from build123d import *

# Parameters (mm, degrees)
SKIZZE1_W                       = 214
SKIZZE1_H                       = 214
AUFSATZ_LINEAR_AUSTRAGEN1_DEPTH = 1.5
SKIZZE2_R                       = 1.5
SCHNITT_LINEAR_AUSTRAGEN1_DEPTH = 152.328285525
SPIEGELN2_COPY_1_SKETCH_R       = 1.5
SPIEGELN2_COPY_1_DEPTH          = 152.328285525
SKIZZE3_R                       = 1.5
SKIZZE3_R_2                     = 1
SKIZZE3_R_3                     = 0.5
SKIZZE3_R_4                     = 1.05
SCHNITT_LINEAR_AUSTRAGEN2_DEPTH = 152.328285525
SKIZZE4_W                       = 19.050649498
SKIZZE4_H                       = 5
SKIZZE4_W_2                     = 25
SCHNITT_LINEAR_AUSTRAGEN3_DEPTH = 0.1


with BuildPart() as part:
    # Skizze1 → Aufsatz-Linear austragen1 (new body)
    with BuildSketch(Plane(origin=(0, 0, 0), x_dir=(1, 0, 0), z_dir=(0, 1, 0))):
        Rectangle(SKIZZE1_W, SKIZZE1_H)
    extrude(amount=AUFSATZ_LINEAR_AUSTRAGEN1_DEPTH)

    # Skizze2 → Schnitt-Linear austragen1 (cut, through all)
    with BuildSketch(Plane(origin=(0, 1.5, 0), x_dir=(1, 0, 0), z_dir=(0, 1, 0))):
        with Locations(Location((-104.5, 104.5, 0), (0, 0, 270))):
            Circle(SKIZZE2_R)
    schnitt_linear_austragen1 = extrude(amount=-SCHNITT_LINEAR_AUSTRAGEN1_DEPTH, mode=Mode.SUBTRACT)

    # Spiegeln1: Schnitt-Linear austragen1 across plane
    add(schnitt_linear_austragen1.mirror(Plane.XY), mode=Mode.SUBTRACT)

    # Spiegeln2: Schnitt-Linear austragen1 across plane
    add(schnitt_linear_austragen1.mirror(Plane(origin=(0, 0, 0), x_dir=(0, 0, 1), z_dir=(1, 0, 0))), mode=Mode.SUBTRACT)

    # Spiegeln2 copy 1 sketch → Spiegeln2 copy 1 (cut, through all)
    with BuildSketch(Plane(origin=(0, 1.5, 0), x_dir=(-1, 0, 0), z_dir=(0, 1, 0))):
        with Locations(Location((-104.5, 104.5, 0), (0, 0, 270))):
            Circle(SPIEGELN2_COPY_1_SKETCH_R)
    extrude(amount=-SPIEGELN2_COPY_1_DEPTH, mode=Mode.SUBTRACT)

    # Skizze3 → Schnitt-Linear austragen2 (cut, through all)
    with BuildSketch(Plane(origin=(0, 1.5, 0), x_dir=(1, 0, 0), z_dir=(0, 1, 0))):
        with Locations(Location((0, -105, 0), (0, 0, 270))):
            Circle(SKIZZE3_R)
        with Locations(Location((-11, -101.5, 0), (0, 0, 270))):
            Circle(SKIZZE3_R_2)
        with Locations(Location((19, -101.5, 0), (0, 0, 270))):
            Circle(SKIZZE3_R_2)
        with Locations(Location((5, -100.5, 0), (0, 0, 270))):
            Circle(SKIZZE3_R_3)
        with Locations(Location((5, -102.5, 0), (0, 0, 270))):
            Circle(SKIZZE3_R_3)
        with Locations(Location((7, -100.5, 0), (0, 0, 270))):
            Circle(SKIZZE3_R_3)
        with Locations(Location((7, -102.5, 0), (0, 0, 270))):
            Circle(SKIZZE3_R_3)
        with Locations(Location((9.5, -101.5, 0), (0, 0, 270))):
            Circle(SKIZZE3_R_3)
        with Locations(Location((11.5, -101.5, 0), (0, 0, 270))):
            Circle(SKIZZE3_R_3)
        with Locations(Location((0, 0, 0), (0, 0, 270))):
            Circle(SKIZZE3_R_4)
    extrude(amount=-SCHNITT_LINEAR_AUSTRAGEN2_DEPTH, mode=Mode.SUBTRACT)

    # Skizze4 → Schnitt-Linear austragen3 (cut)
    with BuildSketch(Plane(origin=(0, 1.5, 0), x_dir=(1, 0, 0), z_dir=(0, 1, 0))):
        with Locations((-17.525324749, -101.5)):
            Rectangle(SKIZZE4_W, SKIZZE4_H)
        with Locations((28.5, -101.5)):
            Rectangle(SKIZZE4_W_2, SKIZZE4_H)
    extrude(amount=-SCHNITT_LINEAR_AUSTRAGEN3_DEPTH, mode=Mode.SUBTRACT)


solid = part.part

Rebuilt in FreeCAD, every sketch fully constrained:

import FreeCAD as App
import Part
import Sketcher
from FreeCAD import Vector
Q = App.Units.Quantity

doc = App.newDocument("Part")
body = doc.addObject("PartDesign::Body", "Body")

# Sketch on XZ plane
sketch1 = body.newObject("Sketcher::SketchObject", "Sketch")
sketch1.AttachmentSupport = (doc.getObject("XZ_Plane"), [""])
sketch1.MapMode = "FlatFace"
sketch1.addGeometry([
    Part.LineSegment(Vector(-107, -107, 0), Vector(-107, 107, 0)),
    Part.LineSegment(Vector(-107, 107, 0), Vector(107, 107, 0)),
    Part.LineSegment(Vector(107, 107, 0), Vector(107, -107, 0)),
    Part.LineSegment(Vector(107, -107, 0), Vector(-107, -107, 0)),
], False)
sketch1.addConstraint([
    Sketcher.Constraint("Coincident", 0, 2, 1, 1),
    Sketcher.Constraint("Coincident", 1, 2, 2, 1),
    Sketcher.Constraint("Coincident", 2, 2, 3, 1),
    Sketcher.Constraint("Coincident", 3, 2, 0, 1),
    Sketcher.Constraint("Vertical", 0),
    Sketcher.Constraint("Horizontal", 1),
    Sketcher.Constraint("Vertical", 2),
    Sketcher.Constraint("Horizontal", 3),
    Sketcher.Constraint("Symmetric", 0, 2, 2, 2, -1, 1),
    Sketcher.Constraint("Equal", 3, 0),
    Sketcher.Constraint("DistanceX", 1, 1, 1, 2, Q("214 mm")),
])
pad1 = body.newObject("PartDesign::Pad", "Pad")
pad1.Profile = sketch1
pad1.Length = 1.5
pad1.Reversed = True

# Sketch on XZ plane
sketch2 = body.newObject("Sketcher::SketchObject", "Sketch001")
sketch2.AttachmentSupport = (doc.getObject("XZ_Plane"), [""])
sketch2.MapMode = "FlatFace"
sketch2.AttachmentOffset = App.Placement(Vector(0, 0, -1.5), App.Rotation())
sketch2.addGeometry(Part.Circle(Vector(-104.5, -104.5, 0), Vector(0, 0, 1), 1.5), False)
sketch2.addConstraint([
    Sketcher.Constraint("Diameter", 0, Q("3 mm")),
    Sketcher.Constraint("DistanceX", 0, 3, -1, 1, Q("104.5 mm")),
    Sketcher.Constraint("DistanceY", 0, 3, -1, 1, Q("104.5 mm")),
])
pocket1 = body.newObject("PartDesign::Pocket", "Pocket")
pocket1.Profile = sketch2
pocket1.Type = "ThroughAll"
pocket1.Reversed = True
doc.recompute()

mirrored = body.newObject("PartDesign::Mirrored", "Mirrored")
mirrored.Originals = [pocket1]
mirrored.MirrorPlane = (doc.getObject("XY_Plane"), [""])
body.Tip = mirrored
doc.recompute()

mirrored2 = body.newObject("PartDesign::Mirrored", "Mirrored001")
mirrored2.Originals = [pocket1]
mirrored2.MirrorPlane = (doc.getObject("YZ_Plane"), [""])
body.Tip = mirrored2

# Sketch on XZ plane
sketch3 = body.newObject("Sketcher::SketchObject", "Sketch002")
sketch3.AttachmentSupport = (doc.getObject("XZ_Plane"), [""])
sketch3.MapMode = "FlatFace"
sketch3.AttachmentOffset = App.Placement(Vector(0, 0, -1.5), App.Rotation())
sketch3.addGeometry(Part.Circle(Vector(104.5, 104.5, 0), Vector(0, 0, 1), 1.5), False)
sketch3.addConstraint([
    Sketcher.Constraint("Diameter", 0, Q("3 mm")),
    Sketcher.Constraint("DistanceX", -1, 1, 0, 3, Q("104.5 mm")),
    Sketcher.Constraint("DistanceY", -1, 1, 0, 3, Q("104.5 mm")),
])
pocket2 = body.newObject("PartDesign::Pocket", "Pocket001")
pocket2.Profile = sketch3
pocket2.Type = "ThroughAll"
pocket2.Reversed = True

# Sketch on XZ plane
sketch4 = body.newObject("Sketcher::SketchObject", "Sketch003")
sketch4.AttachmentSupport = (doc.getObject("XZ_Plane"), [""])
sketch4.MapMode = "FlatFace"
sketch4.AttachmentOffset = App.Placement(Vector(0, 0, -1.5), App.Rotation())
sketch4.addGeometry([
    Part.Circle(Vector(0, 105, 0), Vector(0, 0, 1), 1.5),  # 0
    Part.Circle(Vector(-11, 101.5, 0), Vector(0, 0, 1), 1),  # 1
    Part.Circle(Vector(19, 101.5, 0), Vector(0, 0, 1), 1),  # 2
    Part.Circle(Vector(5, 100.5, 0), Vector(0, 0, 1), 0.5),  # 3
    Part.Circle(Vector(5, 102.5, 0), Vector(0, 0, 1), 0.5),  # 4
    Part.Circle(Vector(7, 100.5, 0), Vector(0, 0, 1), 0.5),  # 5
    Part.Circle(Vector(7, 102.5, 0), Vector(0, 0, 1), 0.5),  # 6
    Part.Circle(Vector(9.5, 101.5, 0), Vector(0, 0, 1), 0.5),  # 7
    Part.Circle(Vector(11.5, 101.5, 0), Vector(0, 0, 1), 0.5),  # 8
    Part.Circle(Vector(0, 0, 0), Vector(0, 0, 1), 1.05),  # 9
], False)
sketch4.addConstraint([
    Sketcher.Constraint("Coincident", 9, 3, -1, 1),
    Sketcher.Constraint("Equal", 1, 2),
    Sketcher.Constraint("Equal", 3, 4),
    Sketcher.Constraint("Equal", 4, 5),
    Sketcher.Constraint("Equal", 5, 6),
    Sketcher.Constraint("Equal", 6, 7),
    Sketcher.Constraint("Equal", 7, 8),
    Sketcher.Constraint("PointOnObject", 0, 3, -2),
    Sketcher.Constraint("Horizontal", 1, 3, 2, 3),
    Sketcher.Constraint("Horizontal", 3, 3, 5, 3),
    Sketcher.Constraint("Horizontal", 4, 3, 6, 3),
    Sketcher.Constraint("Horizontal", 2, 3, 7, 3),
    Sketcher.Constraint("Horizontal", 7, 3, 8, 3),
    Sketcher.Constraint("Vertical", 3, 3, 4, 3),
    Sketcher.Constraint("Vertical", 5, 3, 6, 3),
    Sketcher.Constraint("Diameter", 0, Q("3 mm")),
    Sketcher.Constraint("Diameter", 1, Q("2 mm")),
    Sketcher.Constraint("Diameter", 3, Q("1 mm")),
    Sketcher.Constraint("Diameter", 9, Q("2.1 mm")),
    Sketcher.Constraint("DistanceY", -1, 1, 0, 3, Q("105 mm")),
    Sketcher.Constraint("DistanceX", 1, 3, -1, 1, Q("11 mm")),
    Sketcher.Constraint("DistanceX", -1, 1, 2, 3, Q("19 mm")),
    Sketcher.Constraint("DistanceX", -1, 1, 3, 3, Q("5 mm")),
    Sketcher.Constraint("DistanceX", -1, 1, 5, 3, Q("7 mm")),
    Sketcher.Constraint("DistanceY", 3, 3, 2, 3, Q("1 mm")),
    Sketcher.Constraint("DistanceY", 3, 3, 4, 3, Q("2 mm")),
    Sketcher.Constraint("DistanceX", 7, 3, 8, 3, Q("2 mm")),
    Sketcher.Constraint("DistanceY", -1, 1, 1, 3, Q("101.5 mm")),
    Sketcher.Constraint("DistanceX", -1, 1, 7, 3, Q("9.5 mm")),
])
pocket3 = body.newObject("PartDesign::Pocket", "Pocket002")
pocket3.Profile = sketch4
pocket3.Type = "ThroughAll"
pocket3.Reversed = True

# Sketch on XZ plane
sketch5 = body.newObject("Sketcher::SketchObject", "Sketch004")
sketch5.AttachmentSupport = (doc.getObject("XZ_Plane"), [""])
sketch5.MapMode = "FlatFace"
sketch5.AttachmentOffset = App.Placement(Vector(0, 0, -1.5), App.Rotation())
sketch5.addGeometry([
    Part.LineSegment(Vector(-27.050649, 99, 0), Vector(-27.050649, 104, 0)),  # 0
    Part.LineSegment(Vector(-27.050649, 104, 0), Vector(-8, 104, 0)),  # 1
    Part.LineSegment(Vector(-8, 104, 0), Vector(-8, 99, 0)),  # 2
    Part.LineSegment(Vector(-8, 99, 0), Vector(-27.050649, 99, 0)),  # 3
    Part.LineSegment(Vector(16, 99, 0), Vector(16, 104, 0)),  # 4
    Part.LineSegment(Vector(16, 104, 0), Vector(41, 104, 0)),  # 5
    Part.LineSegment(Vector(41, 104, 0), Vector(41, 99, 0)),  # 6
    Part.LineSegment(Vector(41, 99, 0), Vector(16, 99, 0)),  # 7
], False)
sketch5.addConstraint([
    Sketcher.Constraint("Coincident", 0, 2, 1, 1),
    Sketcher.Constraint("Coincident", 1, 2, 2, 1),
    Sketcher.Constraint("Coincident", 2, 2, 3, 1),
    Sketcher.Constraint("Coincident", 3, 2, 0, 1),
    Sketcher.Constraint("Coincident", 4, 2, 5, 1),
    Sketcher.Constraint("Coincident", 5, 2, 6, 1),
    Sketcher.Constraint("Coincident", 6, 2, 7, 1),
    Sketcher.Constraint("Coincident", 7, 2, 4, 1),
    Sketcher.Constraint("Vertical", 0),
    Sketcher.Constraint("Horizontal", 1),
    Sketcher.Constraint("Vertical", 2),
    Sketcher.Constraint("Horizontal", 3),
    Sketcher.Constraint("Vertical", 4),
    Sketcher.Constraint("Horizontal", 5),
    Sketcher.Constraint("Vertical", 6),
    Sketcher.Constraint("Horizontal", 7),
    Sketcher.Constraint("Horizontal", 1, 2, 4, 2),
    Sketcher.Constraint("Horizontal", 3, 2, 6, 2),
    Sketcher.Constraint("DistanceX", 5, 1, 5, 2, Q("25 mm")),
    Sketcher.Constraint("DistanceY", 0, 1, 0, 2, Q("5 mm")),
    Sketcher.Constraint("DistanceY", -1, 1, 0, 2, Q("104 mm")),
    Sketcher.Constraint("DistanceX", 1, 2, -1, 1, Q("8 mm")),
    Sketcher.Constraint("DistanceX", -1, 1, 4, 2, Q("16 mm")),
    Sketcher.Constraint("DistanceX", 1, 1, 1, 2, Q("19.050649 mm")),
])
pocket4 = body.newObject("PartDesign::Pocket", "Pocket003")
pocket4.Profile = sketch5
pocket4.Length = 0.1
pocket4.Reversed = True

doc.recompute()
